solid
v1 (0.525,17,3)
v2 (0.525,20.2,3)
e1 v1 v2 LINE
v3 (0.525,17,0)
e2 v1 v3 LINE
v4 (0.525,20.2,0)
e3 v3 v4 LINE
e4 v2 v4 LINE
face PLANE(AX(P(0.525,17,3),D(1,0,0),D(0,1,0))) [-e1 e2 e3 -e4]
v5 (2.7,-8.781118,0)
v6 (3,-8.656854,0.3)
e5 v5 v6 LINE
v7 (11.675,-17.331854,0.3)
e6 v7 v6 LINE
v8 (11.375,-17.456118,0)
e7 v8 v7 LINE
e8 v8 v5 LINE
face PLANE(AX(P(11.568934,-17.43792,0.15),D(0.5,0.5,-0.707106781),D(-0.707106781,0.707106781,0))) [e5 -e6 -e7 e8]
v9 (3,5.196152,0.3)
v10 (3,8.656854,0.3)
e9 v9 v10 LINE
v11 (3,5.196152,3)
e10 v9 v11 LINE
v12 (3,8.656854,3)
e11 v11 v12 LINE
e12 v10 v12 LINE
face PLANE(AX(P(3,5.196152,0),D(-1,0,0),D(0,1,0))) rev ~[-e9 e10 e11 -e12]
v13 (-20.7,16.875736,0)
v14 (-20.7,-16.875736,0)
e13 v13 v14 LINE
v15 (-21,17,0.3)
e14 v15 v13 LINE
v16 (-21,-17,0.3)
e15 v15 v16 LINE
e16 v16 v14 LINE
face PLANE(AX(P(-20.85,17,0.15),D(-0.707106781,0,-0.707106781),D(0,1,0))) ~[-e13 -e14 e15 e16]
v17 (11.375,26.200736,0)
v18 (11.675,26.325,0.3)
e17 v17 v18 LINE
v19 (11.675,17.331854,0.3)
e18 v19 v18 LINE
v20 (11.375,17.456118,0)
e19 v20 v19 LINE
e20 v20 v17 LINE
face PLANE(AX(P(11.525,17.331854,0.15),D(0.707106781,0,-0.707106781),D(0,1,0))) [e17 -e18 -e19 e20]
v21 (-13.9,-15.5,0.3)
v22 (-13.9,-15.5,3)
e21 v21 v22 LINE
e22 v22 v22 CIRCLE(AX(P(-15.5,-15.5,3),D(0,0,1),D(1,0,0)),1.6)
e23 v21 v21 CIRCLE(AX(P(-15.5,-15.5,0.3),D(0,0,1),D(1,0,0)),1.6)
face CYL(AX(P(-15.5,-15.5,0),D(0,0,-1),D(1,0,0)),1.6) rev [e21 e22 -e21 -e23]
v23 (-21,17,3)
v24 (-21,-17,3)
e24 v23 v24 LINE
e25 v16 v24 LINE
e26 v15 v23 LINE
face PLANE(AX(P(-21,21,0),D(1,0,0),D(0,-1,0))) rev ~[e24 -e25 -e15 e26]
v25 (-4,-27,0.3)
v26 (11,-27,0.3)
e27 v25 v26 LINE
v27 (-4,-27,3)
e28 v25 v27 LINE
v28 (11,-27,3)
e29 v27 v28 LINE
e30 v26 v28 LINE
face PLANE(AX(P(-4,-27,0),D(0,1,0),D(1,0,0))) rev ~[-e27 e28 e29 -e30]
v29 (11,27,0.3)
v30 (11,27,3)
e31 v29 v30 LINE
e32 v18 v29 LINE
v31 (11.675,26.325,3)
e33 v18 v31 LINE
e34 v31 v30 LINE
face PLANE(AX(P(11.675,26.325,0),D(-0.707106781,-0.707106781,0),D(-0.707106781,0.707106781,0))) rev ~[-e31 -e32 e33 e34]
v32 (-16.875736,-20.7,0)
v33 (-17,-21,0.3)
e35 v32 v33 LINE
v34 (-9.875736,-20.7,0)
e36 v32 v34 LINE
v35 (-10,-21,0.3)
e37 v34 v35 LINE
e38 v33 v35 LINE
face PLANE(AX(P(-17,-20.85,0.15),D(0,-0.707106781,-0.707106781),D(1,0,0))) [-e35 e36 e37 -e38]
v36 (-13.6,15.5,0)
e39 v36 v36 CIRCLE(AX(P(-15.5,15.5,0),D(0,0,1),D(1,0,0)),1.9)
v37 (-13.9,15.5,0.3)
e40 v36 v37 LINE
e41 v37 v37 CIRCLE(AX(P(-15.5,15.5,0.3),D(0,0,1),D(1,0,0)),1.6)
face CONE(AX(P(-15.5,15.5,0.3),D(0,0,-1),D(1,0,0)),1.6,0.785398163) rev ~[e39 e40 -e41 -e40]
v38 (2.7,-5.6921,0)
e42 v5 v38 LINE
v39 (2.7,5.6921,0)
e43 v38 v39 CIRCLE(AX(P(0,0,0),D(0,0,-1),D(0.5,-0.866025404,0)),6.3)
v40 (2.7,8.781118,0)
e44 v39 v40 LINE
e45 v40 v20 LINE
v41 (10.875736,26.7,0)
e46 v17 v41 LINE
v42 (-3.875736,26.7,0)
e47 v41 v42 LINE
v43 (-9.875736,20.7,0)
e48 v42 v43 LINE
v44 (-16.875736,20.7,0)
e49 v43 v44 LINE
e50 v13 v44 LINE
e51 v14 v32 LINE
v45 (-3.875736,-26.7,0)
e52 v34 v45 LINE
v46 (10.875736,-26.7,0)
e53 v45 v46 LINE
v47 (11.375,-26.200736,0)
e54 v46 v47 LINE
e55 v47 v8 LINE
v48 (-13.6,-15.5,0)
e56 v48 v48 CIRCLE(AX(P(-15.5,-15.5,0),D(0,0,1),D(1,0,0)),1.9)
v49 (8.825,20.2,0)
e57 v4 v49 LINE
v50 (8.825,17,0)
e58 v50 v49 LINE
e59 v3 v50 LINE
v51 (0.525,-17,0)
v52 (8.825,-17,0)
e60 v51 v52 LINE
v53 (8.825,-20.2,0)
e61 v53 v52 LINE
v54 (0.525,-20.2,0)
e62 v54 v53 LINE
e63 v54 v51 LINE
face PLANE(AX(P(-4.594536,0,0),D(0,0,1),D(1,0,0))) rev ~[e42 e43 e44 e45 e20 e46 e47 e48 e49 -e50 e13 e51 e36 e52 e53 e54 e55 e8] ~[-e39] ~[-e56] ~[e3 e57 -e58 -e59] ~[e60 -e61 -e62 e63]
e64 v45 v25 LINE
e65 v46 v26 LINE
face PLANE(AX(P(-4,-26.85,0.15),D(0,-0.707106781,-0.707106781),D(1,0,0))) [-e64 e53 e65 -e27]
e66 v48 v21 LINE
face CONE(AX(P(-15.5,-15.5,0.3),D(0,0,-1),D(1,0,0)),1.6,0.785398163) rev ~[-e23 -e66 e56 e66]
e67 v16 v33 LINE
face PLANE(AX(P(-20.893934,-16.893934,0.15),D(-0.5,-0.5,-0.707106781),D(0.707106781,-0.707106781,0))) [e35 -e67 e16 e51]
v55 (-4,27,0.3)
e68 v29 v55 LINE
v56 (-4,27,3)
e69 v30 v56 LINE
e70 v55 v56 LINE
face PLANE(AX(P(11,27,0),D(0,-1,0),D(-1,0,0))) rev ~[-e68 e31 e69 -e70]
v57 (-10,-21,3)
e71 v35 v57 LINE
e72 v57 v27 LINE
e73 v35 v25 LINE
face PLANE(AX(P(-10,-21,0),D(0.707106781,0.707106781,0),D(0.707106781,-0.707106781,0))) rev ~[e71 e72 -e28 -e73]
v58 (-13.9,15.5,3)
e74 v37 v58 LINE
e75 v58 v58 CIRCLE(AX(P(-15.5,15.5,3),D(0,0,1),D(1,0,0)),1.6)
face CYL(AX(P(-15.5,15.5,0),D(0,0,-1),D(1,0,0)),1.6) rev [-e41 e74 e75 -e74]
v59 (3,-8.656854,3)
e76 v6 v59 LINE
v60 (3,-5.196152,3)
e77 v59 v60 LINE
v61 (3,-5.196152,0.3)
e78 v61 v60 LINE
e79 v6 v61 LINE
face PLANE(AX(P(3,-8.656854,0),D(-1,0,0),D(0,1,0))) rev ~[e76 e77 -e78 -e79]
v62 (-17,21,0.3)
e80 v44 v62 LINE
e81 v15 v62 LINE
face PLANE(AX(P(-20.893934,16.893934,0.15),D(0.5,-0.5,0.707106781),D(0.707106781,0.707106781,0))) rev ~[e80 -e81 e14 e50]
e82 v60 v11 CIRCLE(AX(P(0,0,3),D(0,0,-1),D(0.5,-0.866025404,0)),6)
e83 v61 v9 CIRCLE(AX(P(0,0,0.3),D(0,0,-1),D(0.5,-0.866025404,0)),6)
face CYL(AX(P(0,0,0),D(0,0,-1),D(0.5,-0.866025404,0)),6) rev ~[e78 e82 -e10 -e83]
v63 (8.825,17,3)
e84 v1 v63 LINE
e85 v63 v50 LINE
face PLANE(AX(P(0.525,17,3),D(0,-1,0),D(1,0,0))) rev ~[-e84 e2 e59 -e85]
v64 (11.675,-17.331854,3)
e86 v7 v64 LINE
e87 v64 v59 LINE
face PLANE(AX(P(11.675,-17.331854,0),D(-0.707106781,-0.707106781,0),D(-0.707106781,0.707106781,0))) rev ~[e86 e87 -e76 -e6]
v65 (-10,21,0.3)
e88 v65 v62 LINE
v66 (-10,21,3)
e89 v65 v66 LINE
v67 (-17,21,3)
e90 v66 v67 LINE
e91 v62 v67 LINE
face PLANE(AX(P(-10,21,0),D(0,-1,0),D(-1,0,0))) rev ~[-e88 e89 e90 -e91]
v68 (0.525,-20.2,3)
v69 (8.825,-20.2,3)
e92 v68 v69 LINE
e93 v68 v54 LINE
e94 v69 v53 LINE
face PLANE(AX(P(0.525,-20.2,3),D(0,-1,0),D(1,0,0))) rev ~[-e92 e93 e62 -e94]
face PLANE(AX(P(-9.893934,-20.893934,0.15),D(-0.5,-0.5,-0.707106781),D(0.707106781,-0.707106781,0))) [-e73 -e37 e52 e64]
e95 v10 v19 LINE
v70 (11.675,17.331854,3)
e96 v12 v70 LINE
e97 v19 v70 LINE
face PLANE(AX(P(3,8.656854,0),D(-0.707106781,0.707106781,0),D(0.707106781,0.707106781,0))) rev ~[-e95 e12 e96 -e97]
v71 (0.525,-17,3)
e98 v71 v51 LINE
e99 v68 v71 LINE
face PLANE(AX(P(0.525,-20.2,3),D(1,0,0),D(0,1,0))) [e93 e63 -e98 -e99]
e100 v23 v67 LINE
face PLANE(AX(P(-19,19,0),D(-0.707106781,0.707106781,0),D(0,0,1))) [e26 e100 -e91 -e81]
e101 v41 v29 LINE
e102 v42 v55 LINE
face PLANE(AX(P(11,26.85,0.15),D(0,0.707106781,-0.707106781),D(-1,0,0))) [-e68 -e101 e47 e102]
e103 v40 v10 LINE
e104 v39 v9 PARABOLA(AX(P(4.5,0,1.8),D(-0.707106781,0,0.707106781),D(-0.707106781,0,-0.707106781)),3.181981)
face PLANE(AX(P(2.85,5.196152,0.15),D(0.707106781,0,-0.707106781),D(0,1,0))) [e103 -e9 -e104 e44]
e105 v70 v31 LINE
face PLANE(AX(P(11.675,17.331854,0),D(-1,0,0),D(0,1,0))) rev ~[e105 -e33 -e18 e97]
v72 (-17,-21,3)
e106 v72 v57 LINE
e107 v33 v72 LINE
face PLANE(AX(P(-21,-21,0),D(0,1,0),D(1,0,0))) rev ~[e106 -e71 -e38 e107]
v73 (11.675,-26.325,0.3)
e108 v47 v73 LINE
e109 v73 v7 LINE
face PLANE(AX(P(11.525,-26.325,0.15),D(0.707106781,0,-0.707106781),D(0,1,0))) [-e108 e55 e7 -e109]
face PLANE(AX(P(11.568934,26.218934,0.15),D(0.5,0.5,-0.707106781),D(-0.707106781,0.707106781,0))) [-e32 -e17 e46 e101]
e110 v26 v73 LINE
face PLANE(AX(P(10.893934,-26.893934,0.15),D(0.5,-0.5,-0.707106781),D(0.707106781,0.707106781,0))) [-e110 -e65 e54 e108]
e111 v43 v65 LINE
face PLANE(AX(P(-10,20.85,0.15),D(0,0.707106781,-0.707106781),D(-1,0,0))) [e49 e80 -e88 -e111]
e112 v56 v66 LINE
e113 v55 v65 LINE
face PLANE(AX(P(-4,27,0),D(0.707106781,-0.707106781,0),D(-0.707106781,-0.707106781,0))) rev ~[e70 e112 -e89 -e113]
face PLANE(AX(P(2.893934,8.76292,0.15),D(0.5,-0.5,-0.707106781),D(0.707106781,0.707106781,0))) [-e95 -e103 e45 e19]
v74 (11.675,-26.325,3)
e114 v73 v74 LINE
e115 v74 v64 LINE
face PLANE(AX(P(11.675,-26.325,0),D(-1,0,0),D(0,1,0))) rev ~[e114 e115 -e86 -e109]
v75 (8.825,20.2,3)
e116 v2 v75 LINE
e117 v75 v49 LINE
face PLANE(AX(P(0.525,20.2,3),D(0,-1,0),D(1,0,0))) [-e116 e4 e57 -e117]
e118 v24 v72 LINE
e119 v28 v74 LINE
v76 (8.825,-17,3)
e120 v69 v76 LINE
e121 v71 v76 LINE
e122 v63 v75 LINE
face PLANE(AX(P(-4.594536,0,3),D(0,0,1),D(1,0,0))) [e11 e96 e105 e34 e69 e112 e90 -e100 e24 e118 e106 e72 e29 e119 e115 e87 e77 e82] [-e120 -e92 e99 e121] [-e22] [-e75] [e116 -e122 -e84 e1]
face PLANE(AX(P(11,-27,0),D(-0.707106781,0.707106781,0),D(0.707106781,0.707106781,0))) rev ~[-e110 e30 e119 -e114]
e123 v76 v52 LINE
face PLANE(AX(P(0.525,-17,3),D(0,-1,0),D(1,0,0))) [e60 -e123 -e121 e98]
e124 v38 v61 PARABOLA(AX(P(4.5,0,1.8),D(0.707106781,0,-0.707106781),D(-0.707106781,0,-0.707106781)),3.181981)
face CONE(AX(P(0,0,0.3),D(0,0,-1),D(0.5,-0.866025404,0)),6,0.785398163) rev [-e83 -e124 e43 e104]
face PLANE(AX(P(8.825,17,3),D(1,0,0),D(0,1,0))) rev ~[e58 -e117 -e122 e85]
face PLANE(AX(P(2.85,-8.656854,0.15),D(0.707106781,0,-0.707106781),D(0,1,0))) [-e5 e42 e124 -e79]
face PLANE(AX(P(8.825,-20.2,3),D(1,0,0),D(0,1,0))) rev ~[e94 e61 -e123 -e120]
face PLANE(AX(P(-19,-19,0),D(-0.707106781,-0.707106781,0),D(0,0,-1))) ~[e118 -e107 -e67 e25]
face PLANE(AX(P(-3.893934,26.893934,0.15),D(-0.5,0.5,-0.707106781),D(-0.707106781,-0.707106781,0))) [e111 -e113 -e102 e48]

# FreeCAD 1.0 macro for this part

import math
import FreeCAD as App
import Part
import Sketcher


def edges_at(feature, points):
    """Names of the edges that pass closest to the given points."""
    edges = feature.Shape.Edges
    near = lambda p: min(range(len(edges)), key=lambda i: edges[i].distToShape(Part.Vertex(*p))[0])
    return sorted({f"Edge{near(p) + 1}" for p in points})


def add_polygon(sketch, points):
    """Adds a closed chain of lines whose ends are joined by coincident constraints."""
    first, n = sketch.GeometryCount, len(points)
    for a, b in zip(points, points[1:] + points[:1]):
        sketch.addGeometry(Part.LineSegment(App.Vector(*a, 0), App.Vector(*b, 0)), False)
    for i in range(n):
        sketch.addConstraint(Sketcher.Constraint("Coincident", first + i, 2, first + (i + 1) % n, 1))

doc = App.newDocument("Part")
body = doc.addObject("PartDesign::Body", "Body")

# Sketch on XY plane
sketch1 = body.newObject("Sketcher::SketchObject", "Sketch")
sketch1.AttachmentSupport = (doc.getObject("XY_Plane"), [""])
sketch1.MapMode = "FlatFace"
sketch1.addGeometry(Part.LineSegment(App.Vector(-21, 21, 0), App.Vector(-21, -21, 0)), False)
sketch1.addGeometry(Part.LineSegment(App.Vector(-21, -21, 0), App.Vector(-10, -21, 0)), False)
sketch1.addGeometry(Part.LineSegment(App.Vector(-10, -21, 0), App.Vector(-4, -27, 0)), False)
sketch1.addGeometry(Part.LineSegment(App.Vector(-4, -27, 0), App.Vector(11, -27, 0)), False)
sketch1.addGeometry(Part.LineSegment(App.Vector(11, -27, 0), App.Vector(11.7, -26.3, 0)), False)
sketch1.addGeometry(Part.LineSegment(App.Vector(11.7, -26.3, 0), App.Vector(11.7, -17.3, 0)), False)
sketch1.addGeometry(Part.LineSegment(App.Vector(11.7, -17.3, 0), App.Vector(3, -8.7, 0)), False)
sketch1.addGeometry(Part.LineSegment(App.Vector(3, -8.7, 0), App.Vector(3, -5.2, 0)), False)
sketch1.addGeometry(Part.ArcOfCircle(Part.Circle(App.Vector(0, 0, 0), App.Vector(0, 0, 1), 6), math.radians(60), math.radians(300)), False)
sketch1.addGeometry(Part.LineSegment(App.Vector(3, 5.2, 0), App.Vector(3, 8.7, 0)), False)
sketch1.addGeometry(Part.LineSegment(App.Vector(3, 8.7, 0), App.Vector(11.7, 17.3, 0)), False)
sketch1.addGeometry(Part.LineSegment(App.Vector(11.7, 17.3, 0), App.Vector(11.7, 26.3, 0)), False)
sketch1.addGeometry(Part.LineSegment(App.Vector(11.7, 26.3, 0), App.Vector(11, 27, 0)), False)
sketch1.addGeometry(Part.LineSegment(App.Vector(11, 27, 0), App.Vector(-4, 27, 0)), False)
sketch1.addGeometry(Part.LineSegment(App.Vector(-4, 27, 0), App.Vector(-10, 21, 0)), False)
sketch1.addGeometry(Part.LineSegment(App.Vector(-10, 21, 0), App.Vector(-21, 21, 0)), False)
sketch1.addGeometry(Part.Circle(App.Vector(-15.5, -15.5, 0), App.Vector(0, 0, 1), 1.6), False)
sketch1.addGeometry(Part.Circle(App.Vector(-15.5, 15.5, 0), App.Vector(0, 0, 1), 1.6), False)
sketch1.addConstraint(Sketcher.Constraint("Coincident", 0, 2, 1, 1))
sketch1.addConstraint(Sketcher.Constraint("Coincident", 1, 2, 2, 1))
sketch1.addConstraint(Sketcher.Constraint("Coincident", 2, 2, 3, 1))
sketch1.addConstraint(Sketcher.Constraint("Coincident", 3, 2, 4, 1))
sketch1.addConstraint(Sketcher.Constraint("Coincident", 4, 2, 5, 1))
sketch1.addConstraint(Sketcher.Constraint("Coincident", 5, 2, 6, 1))
sketch1.addConstraint(Sketcher.Constraint("Coincident", 6, 2, 7, 1))
sketch1.addConstraint(Sketcher.Constraint("Coincident", 7, 2, 8, 2))
sketch1.addConstraint(Sketcher.Constraint("Coincident", 8, 1, 9, 1))
sketch1.addConstraint(Sketcher.Constraint("Coincident", 9, 2, 10, 1))
sketch1.addConstraint(Sketcher.Constraint("Coincident", 10, 2, 11, 1))
sketch1.addConstraint(Sketcher.Constraint("Coincident", 11, 2, 12, 1))
sketch1.addConstraint(Sketcher.Constraint("Coincident", 12, 2, 13, 1))
sketch1.addConstraint(Sketcher.Constraint("Coincident", 13, 2, 14, 1))
sketch1.addConstraint(Sketcher.Constraint("Coincident", 14, 2, 15, 1))
sketch1.addConstraint(Sketcher.Constraint("Coincident", 15, 2, 0, 1))
sketch1.addConstraint(Sketcher.Constraint("Vertical", 0))
sketch1.addConstraint(Sketcher.Constraint("Horizontal", 1))
sketch1.addConstraint(Sketcher.Constraint("Horizontal", 3))
sketch1.addConstraint(Sketcher.Constraint("Vertical", 5))
sketch1.addConstraint(Sketcher.Constraint("Vertical", 7))
sketch1.addConstraint(Sketcher.Constraint("Vertical", 9))
sketch1.addConstraint(Sketcher.Constraint("Vertical", 11))
sketch1.addConstraint(Sketcher.Constraint("Horizontal", 13))
sketch1.addConstraint(Sketcher.Constraint("Horizontal", 15))
sketch1.addConstraint(Sketcher.Constraint("Coincident", 8, 3, -1, 1))
sketch1.addConstraint(Sketcher.Constraint("Equal", 16, 17))
sketch1.addConstraint(Sketcher.Constraint("Symmetric", 16, 3, 17, 3, -1))
sketch1.addConstraint(Sketcher.Constraint("Symmetric", 6, 2, 9, 2, -1))
sketch1.addConstraint(Sketcher.Constraint("Symmetric", 5, 2, 10, 2, -1))
sketch1.addConstraint(Sketcher.Constraint("Symmetric", 3, 2, 12, 2, -1))
sketch1.addConstraint(Sketcher.Constraint("Symmetric", 1, 2, 14, 2, -1))
sketch1.addConstraint(Sketcher.Constraint("Perpendicular", 2, 4))
sketch1.addConstraint(Sketcher.Constraint("Perpendicular", 4, 6))
sketch1.addConstraint(Sketcher.Constraint("Perpendicular", 6, 10))
sketch1.addConstraint(Sketcher.Constraint("Perpendicular", 10, 12))
sketch1.addConstraint(Sketcher.Constraint("Perpendicular", 12, 14))
sketch1.addConstraint(Sketcher.Constraint("Radius", 8, 6.0))
sketch1.addConstraint(Sketcher.Constraint("Diameter", 16, 3.2))
sketch1.addConstraint(Sketcher.Constraint("DistanceX", 1, 1, 1, 2, 11.0))
sketch1.addConstraint(Sketcher.Constraint("DistanceX", 3, 1, 3, 2, 15.0))
sketch1.addConstraint(Sketcher.Constraint("DistanceY", 0, 2, 0, 1, 42.0))
sketch1.addConstraint(Sketcher.Constraint("DistanceX", 0, 2, -1, 1, 21.0))
sketch1.addConstraint(Sketcher.Constraint("DistanceX", 2, 2, -1, 1, 4.0))
sketch1.addConstraint(Sketcher.Constraint("DistanceX", -1, 1, 6, 2, 3.0))
sketch1.addConstraint(Sketcher.Constraint("DistanceY", 16, 3, 17, 3, 31.0))
sketch1.addConstraint(Sketcher.Constraint("DistanceX", 16, 3, -1, 1, 15.5))
sketch1.addConstraint(Sketcher.Constraint("DistanceY", 7, 1, 7, 2, 3.460702))
sketch1.addConstraint(Sketcher.Constraint("DistanceX", -1, 1, 4, 2, 11.675))
pad1 = body.newObject("PartDesign::Pad", "Pad")
pad1.Profile = sketch1
pad1.Length = 3
doc.recompute()

chamfer = body.newObject("PartDesign::Chamfer", "Chamfer")
chamfer.Base = (pad1, edges_at(pad1, [(-21, -21, 1.5), (-21, 21, 1.5)]))
chamfer.Size = 4
doc.recompute()

chamfer2 = body.newObject("PartDesign::Chamfer", "Chamfer001")
chamfer2.Base = (chamfer, edges_at(chamfer, [
    (-7, 24, 0),
    (3.5, 27, 0),
    (11.338, 26.663, 0),
    (11.675, 21.828, 0),
    (7.338, 12.994, 0),
    (3, 6.927, 0),
    (-6, 0, 0),
    (3, -6.927, 0),
    (7.338, -12.994, 0),
    (11.675, -21.828, 0),
    (11.338, -26.663, 0),
    (3.5, -27, 0),
    (-7, -24, 0),
    (-13.5, 21, 0),
    (-17.1, -15.5, 0),
    (-17.1, 15.5, 0),
    (-21, 0, 0),
    (-13.5, -21, 0),
    (-19, -19, 0),
    (-19, 19, 0),
]))
chamfer2.Size = 0.3

# Sketch on XY plane
sketch2 = body.newObject("Sketcher::SketchObject", "Sketch001")
sketch2.AttachmentSupport = (doc.getObject("XY_Plane"), [""])
sketch2.MapMode = "FlatFace"
sketch2.AttachmentOffset = App.Placement(App.Vector(0, 0, 3), App.Rotation())
add_polygon(sketch2, [(0.5, 20.2), (0.5, 17), (8.8, 17), (8.8, 20.2)])  # lines 0-3
add_polygon(sketch2, [(0.5, -17), (0.5, -20.2), (8.8, -20.2), (8.8, -17)])  # lines 4-7
sketch2.addConstraint(Sketcher.Constraint("Vertical", 0))
sketch2.addConstraint(Sketcher.Constraint("Horizontal", 1))
sketch2.addConstraint(Sketcher.Constraint("Vertical", 2))
sketch2.addConstraint(Sketcher.Constraint("Horizontal", 3))
sketch2.addConstraint(Sketcher.Constraint("Vertical", 4))
sketch2.addConstraint(Sketcher.Constraint("Horizontal", 5))
sketch2.addConstraint(Sketcher.Constraint("Vertical", 6))
sketch2.addConstraint(Sketcher.Constraint("Horizontal", 7))
sketch2.addConstraint(Sketcher.Constraint("Symmetric", 3, 2, 4, 2, -1))
sketch2.addConstraint(Sketcher.Constraint("Symmetric", 1, 2, 6, 2, -1))
sketch2.addConstraint(Sketcher.Constraint("DistanceX", 1, 1, 1, 2, 8.3))
sketch2.addConstraint(Sketcher.Constraint("DistanceY", 0, 2, 0, 1, 3.2))
sketch2.addConstraint(Sketcher.Constraint("DistanceY", -1, 1, 0, 2, 17.0))
sketch2.addConstraint(Sketcher.Constraint("DistanceX", -1, 1, 0, 2, 0.525))
pocket1 = body.newObject("PartDesign::Pocket", "Pocket")
pocket1.Profile = sketch2
pocket1.Type = "ThroughAll"

doc.recompute()
